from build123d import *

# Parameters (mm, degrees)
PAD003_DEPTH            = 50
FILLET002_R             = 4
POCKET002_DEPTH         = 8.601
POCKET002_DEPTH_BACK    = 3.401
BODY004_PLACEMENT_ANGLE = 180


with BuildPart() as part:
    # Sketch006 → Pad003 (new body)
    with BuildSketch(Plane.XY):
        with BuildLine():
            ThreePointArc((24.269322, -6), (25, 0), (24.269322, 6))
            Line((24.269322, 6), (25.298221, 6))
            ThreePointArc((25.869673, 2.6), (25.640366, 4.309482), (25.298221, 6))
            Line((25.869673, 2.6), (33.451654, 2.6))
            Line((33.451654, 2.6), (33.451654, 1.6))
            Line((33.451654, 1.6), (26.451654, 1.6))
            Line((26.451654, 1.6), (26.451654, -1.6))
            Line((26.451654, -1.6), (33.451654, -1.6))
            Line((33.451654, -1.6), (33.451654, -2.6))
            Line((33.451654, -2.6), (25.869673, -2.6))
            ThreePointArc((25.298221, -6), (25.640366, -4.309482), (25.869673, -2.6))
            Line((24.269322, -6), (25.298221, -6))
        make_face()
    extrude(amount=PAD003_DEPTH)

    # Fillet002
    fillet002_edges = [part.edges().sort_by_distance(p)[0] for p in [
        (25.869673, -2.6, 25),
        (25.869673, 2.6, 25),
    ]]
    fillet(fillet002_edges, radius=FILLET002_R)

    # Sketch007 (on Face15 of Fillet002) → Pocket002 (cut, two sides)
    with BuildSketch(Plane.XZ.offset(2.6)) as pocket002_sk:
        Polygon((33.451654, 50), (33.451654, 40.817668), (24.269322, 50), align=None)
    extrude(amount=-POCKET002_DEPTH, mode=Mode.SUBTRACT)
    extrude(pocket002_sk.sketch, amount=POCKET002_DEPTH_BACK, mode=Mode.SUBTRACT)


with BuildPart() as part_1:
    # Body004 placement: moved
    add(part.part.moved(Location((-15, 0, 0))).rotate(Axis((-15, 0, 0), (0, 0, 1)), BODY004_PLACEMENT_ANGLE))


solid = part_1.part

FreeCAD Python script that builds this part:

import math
import FreeCAD as App
import Part
import Sketcher
from FreeCAD import Vector
Q = App.Units.Quantity


def edges_at(feature, points):
    """Names of the edges that pass closest to the given points."""
    edges = feature.Shape.Edges
    near = lambda p: min(range(len(edges)), key=lambda i: edges[i].distToShape(Part.Vertex(*p))[0])
    return sorted({f"Edge{near(p) + 1}" for p in points})

doc = App.newDocument("Part")
params = doc.addObject("Spreadsheet::Sheet", "Params")
for row, (alias, value) in enumerate([
    ("sketch1_width", "7 mm"),
    ("sketch1_height", "1 mm"),
    ("sketch1_height2", "3.2 mm"),
    ("pad1_length", "50 mm"),
    ("fillet_radius", "4 mm"),
], start=1):
    params.set(f"A{row}", alias)
    params.set(f"B{row}", "=" + value)
    params.setAlias(f"B{row}", alias)

body = doc.addObject("PartDesign::Body", "Body")

# Sketch on XY plane
sketch1 = doc.addObject("Sketcher::SketchObject", "Sketch")
body.addObject(sketch1)
sketch1.AttachmentSupport = (doc.XY_Plane, [""])
sketch1.MapMode = "FlatFace"
sketch1.addGeometry([
    Part.ArcOfCircle(Part.Circle(Vector(0.000007, 0, 0), Vector(0, 0, 1), 24.999993), math.radians(-13.886544), math.radians(13.886544)),  # 0
    Part.LineSegment(Vector(24.269322, -6, 0), Vector(25.298221, -6, 0)),  # 1
    Part.ArcOfCircle(Part.Circle(Vector(0.000175, -0.00003, 0), Vector(0, 0, 1), 25.999823), math.radians(-13.342388), math.radians(-5.739143)),  # 2
    Part.LineSegment(Vector(25.869673, -2.6, 0), Vector(33.451654, -2.6, 0)),  # 3
    Part.LineSegment(Vector(33.451654, -2.6, 0), Vector(33.451654, -1.6, 0)),  # 4
    Part.LineSegment(Vector(33.451654, -1.6, 0), Vector(26.451654, -1.6, 0)),  # 5
    Part.LineSegment(Vector(26.451654, -1.6, 0), Vector(26.451654, 1.6, 0)),  # 6
    Part.LineSegment(Vector(26.451654, 1.6, 0), Vector(33.451654, 1.6, 0)),  # 7
    Part.LineSegment(Vector(33.451654, 1.6, 0), Vector(33.451654, 2.6, 0)),  # 8
    Part.LineSegment(Vector(33.451654, 2.6, 0), Vector(25.869673, 2.6, 0)),  # 9
    Part.ArcOfCircle(Part.Circle(Vector(0.000175, 0.00003, 0), Vector(0, 0, 1), 25.999823), math.radians(5.739143), math.radians(13.342388)),  # 10
    Part.LineSegment(Vector(25.298221, 6, 0), Vector(24.269322, 6, 0)),  # 11
], False)
sketch1.addConstraint([
    Sketcher.Constraint("Coincident", 0, 1, 1, 1),
    Sketcher.Constraint("Coincident", 1, 2, 2, 1),
    Sketcher.Constraint("Coincident", 2, 2, 3, 1),
    Sketcher.Constraint("Coincident", 3, 2, 4, 1),
    Sketcher.Constraint("Coincident", 4, 2, 5, 1),
    Sketcher.Constraint("Coincident", 5, 2, 6, 1),
    Sketcher.Constraint("Coincident", 6, 2, 7, 1),
    Sketcher.Constraint("Coincident", 7, 2, 8, 1),
    Sketcher.Constraint("Coincident", 8, 2, 9, 1),
    Sketcher.Constraint("Coincident", 9, 2, 10, 1),
    Sketcher.Constraint("Coincident", 10, 2, 11, 1),
    Sketcher.Constraint("Coincident", 11, 2, 0, 2),
    Sketcher.Constraint("Horizontal", 1),
    Sketcher.Constraint("Horizontal", 3),
    Sketcher.Constraint("Vertical", 4),
    Sketcher.Constraint("Horizontal", 5),
    Sketcher.Constraint("Vertical", 6),
    Sketcher.Constraint("Horizontal", 7),
    Sketcher.Constraint("Vertical", 8),
    Sketcher.Constraint("Horizontal", 9),
    Sketcher.Constraint("Horizontal", 11),
    Sketcher.Constraint("Coincident", 0, 3, -1, 1),
    Sketcher.Constraint("Equal", 2, 10),
    Sketcher.Constraint("Symmetric", 2, 3, 10, 3, -1),
    Sketcher.Constraint("Symmetric", 4, 2, 7, 2, -1),
    Sketcher.Constraint("Vertical", 2, 2, 9, 2),
    Sketcher.Constraint("Vertical", 1, 2, 10, 2),
    Sketcher.Constraint("DistanceX", 5, 2, 5, 1, Q("7 mm")),
    Sketcher.Constraint("DistanceY", 4, 1, 4, 2, Q("1 mm")),
    Sketcher.Constraint("DistanceY", 6, 1, 6, 2, Q("3.2 mm")),
    Sketcher.Constraint("DistanceY", 0, 1, -1, 1, Q("6 mm")),
    Sketcher.Constraint("DistanceX", 1, 1, 1, 2, Q("1.028899 mm")),
    Sketcher.Constraint("Radius", 0, Q("24.999993 mm")),
    Sketcher.Constraint("Radius", 2, Q("25.999823 mm")),
    Sketcher.Constraint("DistanceX", 3, 1, 3, 2, Q("7.581981 mm")),
    Sketcher.Constraint("DistanceX", 2, 3, 2, 2, Q("25.869498 mm")),
])
sketch1.setExpression("Constraints[27]", "Params.sketch1_width")
sketch1.setExpression("Constraints[28]", "Params.sketch1_height")
sketch1.setExpression("Constraints[29]", "Params.sketch1_height2")
pad1 = doc.addObject("PartDesign::Pad", "Pad")
body.addObject(pad1)
pad1.Profile = sketch1
pad1.setExpression("Length", "Params.pad1_length")
doc.recompute()

fillet = doc.addObject("PartDesign::Fillet", "Fillet")
body.addObject(fillet)
fillet.Base = (pad1, edges_at(pad1, [(25.87, -2.6, 25), (25.87, 2.6, 25)]))
fillet.setExpression("Radius", "Params.fillet_radius")

# Sketch on XZ plane
sketch2 = doc.addObject("Sketcher::SketchObject", "Sketch001")
body.addObject(sketch2)
sketch2.AttachmentSupport = (doc.XZ_Plane, [""])
sketch2.MapMode = "FlatFace"
sketch2.AttachmentOffset = App.Placement(Vector(0, 0, 2.6), App.Rotation())
sketch2.addGeometry([
    Part.LineSegment(Vector(33, 41, 0), Vector(33, 50, 0)),
    Part.LineSegment(Vector(33, 50, 0), Vector(24, 50, 0)),
    Part.LineSegment(Vector(24, 50, 0), Vector(33, 41, 0)),
], False)
sketch2.addConstraint([
    Sketcher.Constraint("Coincident", 0, 2, 1, 1),
    Sketcher.Constraint("Coincident", 1, 2, 2, 1),
    Sketcher.Constraint("Coincident", 2, 2, 0, 1),
    Sketcher.Constraint("Vertical", 0),
    Sketcher.Constraint("Horizontal", 1),
    Sketcher.Constraint("Equal", 1, 0),
    Sketcher.Constraint("DistanceY", -1, 1, 0, 2, Q("50 mm")),
    Sketcher.Constraint("DistanceX", 1, 2, 1, 1, Q("9.182332 mm")),
    Sketcher.Constraint("DistanceX", -1, 1, 1, 2, Q("24.269322 mm")),
])
pocket1 = doc.addObject("PartDesign::Pocket", "Pocket")
body.addObject(pocket1)
pocket1.Profile = sketch2
pocket1.Type = "ThroughAll"
pocket1.Midplane = True
body2 = doc.addObject("PartDesign::Body", "Body001")
doc.recompute()

body.Placement = App.Placement(Vector(-15, 0, 0), App.Rotation(Vector(0, 0, 1), 180))
boolean = doc.addObject("PartDesign::Boolean", "Boolean")
body2.addObject(boolean)
boolean.Type = "Fuse"
boolean.addObjects([body])

doc.recompute()
